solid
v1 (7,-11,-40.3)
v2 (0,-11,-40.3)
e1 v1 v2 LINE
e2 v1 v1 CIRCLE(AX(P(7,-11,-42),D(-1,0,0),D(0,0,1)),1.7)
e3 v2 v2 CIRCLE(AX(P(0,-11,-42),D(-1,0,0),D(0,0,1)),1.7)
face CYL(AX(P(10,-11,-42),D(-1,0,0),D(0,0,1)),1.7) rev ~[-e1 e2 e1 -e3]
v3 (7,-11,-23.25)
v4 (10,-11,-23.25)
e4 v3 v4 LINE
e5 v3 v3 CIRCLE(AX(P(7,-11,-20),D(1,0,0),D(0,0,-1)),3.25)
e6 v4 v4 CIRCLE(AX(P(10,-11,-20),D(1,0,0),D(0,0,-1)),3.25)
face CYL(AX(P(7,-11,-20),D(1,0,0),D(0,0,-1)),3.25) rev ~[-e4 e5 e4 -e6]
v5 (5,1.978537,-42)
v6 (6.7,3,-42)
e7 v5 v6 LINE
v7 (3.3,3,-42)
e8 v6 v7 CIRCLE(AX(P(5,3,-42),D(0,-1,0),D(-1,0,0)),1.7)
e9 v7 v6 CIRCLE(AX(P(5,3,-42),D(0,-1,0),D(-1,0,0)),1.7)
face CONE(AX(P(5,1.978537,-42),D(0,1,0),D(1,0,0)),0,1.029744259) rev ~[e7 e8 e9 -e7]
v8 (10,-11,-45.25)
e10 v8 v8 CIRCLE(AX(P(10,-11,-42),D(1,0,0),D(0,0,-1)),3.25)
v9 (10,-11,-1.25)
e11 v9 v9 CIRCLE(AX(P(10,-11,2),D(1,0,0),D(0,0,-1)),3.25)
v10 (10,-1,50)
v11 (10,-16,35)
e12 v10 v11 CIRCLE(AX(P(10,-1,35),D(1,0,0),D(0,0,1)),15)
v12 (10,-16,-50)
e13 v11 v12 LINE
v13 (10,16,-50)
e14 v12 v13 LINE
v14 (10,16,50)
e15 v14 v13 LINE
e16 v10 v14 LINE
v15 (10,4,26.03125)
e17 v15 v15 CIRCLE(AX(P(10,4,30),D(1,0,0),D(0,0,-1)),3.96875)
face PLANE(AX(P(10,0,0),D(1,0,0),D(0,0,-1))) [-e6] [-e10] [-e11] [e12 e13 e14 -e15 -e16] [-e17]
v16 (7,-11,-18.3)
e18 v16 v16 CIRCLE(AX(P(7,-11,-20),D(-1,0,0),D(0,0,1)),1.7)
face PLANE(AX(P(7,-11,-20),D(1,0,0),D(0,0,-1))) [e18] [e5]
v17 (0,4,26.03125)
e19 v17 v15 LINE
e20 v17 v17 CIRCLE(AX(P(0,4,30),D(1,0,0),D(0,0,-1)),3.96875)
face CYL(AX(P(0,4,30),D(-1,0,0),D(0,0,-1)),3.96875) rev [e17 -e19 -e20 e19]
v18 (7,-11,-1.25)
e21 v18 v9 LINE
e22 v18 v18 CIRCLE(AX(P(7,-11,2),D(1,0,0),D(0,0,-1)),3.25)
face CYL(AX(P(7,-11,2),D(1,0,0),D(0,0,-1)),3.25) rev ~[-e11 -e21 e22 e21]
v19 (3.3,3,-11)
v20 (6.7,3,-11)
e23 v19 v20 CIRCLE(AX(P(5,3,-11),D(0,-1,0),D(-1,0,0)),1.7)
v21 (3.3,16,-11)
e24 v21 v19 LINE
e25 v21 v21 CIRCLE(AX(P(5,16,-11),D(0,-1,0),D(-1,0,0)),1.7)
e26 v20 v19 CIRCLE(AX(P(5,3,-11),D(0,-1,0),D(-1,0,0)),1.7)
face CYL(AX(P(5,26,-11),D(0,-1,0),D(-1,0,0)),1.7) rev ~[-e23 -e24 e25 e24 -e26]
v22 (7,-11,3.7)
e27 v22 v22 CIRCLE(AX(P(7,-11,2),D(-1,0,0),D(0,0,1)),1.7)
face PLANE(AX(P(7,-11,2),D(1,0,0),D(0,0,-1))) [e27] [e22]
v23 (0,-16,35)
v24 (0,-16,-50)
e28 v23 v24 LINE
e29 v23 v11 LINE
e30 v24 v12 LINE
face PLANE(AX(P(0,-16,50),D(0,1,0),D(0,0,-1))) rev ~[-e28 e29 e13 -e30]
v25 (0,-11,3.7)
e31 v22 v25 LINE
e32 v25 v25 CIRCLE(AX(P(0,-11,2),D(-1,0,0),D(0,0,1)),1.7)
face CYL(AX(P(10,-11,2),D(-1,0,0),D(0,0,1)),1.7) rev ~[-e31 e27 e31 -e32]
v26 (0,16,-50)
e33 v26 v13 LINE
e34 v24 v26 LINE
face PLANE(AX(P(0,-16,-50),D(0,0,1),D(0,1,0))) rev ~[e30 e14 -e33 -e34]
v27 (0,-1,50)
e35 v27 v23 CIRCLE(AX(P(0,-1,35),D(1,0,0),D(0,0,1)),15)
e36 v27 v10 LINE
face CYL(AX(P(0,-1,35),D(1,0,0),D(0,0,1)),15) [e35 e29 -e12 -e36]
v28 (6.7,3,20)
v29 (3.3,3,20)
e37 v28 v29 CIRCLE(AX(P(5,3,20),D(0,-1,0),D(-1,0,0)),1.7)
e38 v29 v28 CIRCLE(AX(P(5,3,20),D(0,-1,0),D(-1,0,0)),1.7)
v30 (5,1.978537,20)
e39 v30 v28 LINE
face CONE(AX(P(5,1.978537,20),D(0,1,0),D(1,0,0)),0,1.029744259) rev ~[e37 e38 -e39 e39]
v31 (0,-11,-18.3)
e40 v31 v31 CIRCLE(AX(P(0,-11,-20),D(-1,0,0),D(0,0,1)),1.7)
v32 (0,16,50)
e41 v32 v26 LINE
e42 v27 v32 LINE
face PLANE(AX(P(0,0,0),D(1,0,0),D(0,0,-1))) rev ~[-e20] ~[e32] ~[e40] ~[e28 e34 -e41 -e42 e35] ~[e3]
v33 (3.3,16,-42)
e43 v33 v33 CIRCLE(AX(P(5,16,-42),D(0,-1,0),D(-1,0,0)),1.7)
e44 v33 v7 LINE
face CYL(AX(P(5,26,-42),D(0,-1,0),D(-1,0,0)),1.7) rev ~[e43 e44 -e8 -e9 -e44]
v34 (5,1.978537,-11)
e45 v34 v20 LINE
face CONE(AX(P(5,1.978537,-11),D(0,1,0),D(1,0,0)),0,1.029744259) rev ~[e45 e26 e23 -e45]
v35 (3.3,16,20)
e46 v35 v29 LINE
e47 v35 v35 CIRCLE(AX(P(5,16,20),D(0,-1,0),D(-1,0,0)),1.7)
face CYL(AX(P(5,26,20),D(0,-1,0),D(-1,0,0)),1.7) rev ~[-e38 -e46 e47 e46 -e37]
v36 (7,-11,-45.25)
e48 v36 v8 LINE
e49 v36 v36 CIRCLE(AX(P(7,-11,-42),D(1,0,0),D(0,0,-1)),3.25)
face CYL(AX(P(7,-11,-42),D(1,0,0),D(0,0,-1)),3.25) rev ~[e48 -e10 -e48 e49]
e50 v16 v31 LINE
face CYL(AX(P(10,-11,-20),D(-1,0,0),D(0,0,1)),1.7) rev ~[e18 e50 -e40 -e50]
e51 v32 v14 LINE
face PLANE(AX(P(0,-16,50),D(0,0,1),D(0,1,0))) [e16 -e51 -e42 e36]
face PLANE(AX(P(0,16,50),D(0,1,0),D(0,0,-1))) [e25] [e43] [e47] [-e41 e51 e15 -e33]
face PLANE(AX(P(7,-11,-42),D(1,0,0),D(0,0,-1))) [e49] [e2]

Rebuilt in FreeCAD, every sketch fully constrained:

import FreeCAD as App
import Part
import Sketcher

V = App.Vector


def edges_at(feature, points):
    """Names of the edges that pass closest to the given points."""
    edges = feature.Shape.Edges
    near = lambda p: min(range(len(edges)), key=lambda i: edges[i].distToShape(Part.Vertex(*p))[0])
    return sorted({f"Edge{near(p) + 1}" for p in points})


def add_polygon(sketch, points):
    """Adds a closed chain of lines whose ends are joined by coincident constraints."""
    first, n = sketch.GeometryCount, len(points)
    for a, b in zip(points, points[1:] + points[:1]):
        sketch.addGeometry(Part.LineSegment(App.Vector(*a, 0), App.Vector(*b, 0)), False)
    for i in range(n):
        sketch.addConstraint(Sketcher.Constraint("Coincident", first + i, 2, first + (i + 1) % n, 1))

doc = App.newDocument("Part")
body = doc.addObject("PartDesign::Body", "Body")

# Sketch on YZ plane
sketch1 = body.newObject("Sketcher::SketchObject", "Sketch")
sketch1.AttachmentSupport = (doc.getObject("YZ_Plane"), [""])
sketch1.MapMode = "FlatFace"
add_polygon(sketch1, [(16, 50), (-16, 50), (-16, -50), (16, -50)])  # lines 0-3
sketch1.addGeometry(Part.Circle(V(4, 30, 0), V(0, 0, 1), 4), False)  # 4
sketch1.addConstraint([
    Sketcher.Constraint("Horizontal", 0),
    Sketcher.Constraint("Vertical", 1),
    Sketcher.Constraint("Horizontal", 2),
    Sketcher.Constraint("Vertical", 3),
    Sketcher.Constraint("Symmetric", 0, 2, 2, 2, -1, 1),
    Sketcher.Constraint("DistanceX", 0, 2, 0, 1, 32.0),
    Sketcher.Constraint("DistanceY", 1, 2, 1, 1, 100.0),
    Sketcher.Constraint("DistanceX", -1, 1, 4, 3, 4.0),
    Sketcher.Constraint("DistanceY", -1, 1, 4, 3, 30.0),
    Sketcher.Constraint("Diameter", 4, 7.9375),
])
pad1 = body.newObject("PartDesign::Pad", "Pad")
pad1.Profile = sketch1
pad1.Length = 10
doc.recompute()

fillet = body.newObject("PartDesign::Fillet", "Fillet")
fillet.Base = (pad1, edges_at(pad1, [(5, -16, 50)]))
fillet.Radius = 15

# Sketch on XZ plane
sketch2 = body.newObject("Sketcher::SketchObject", "Sketch001")
sketch2.AttachmentSupport = (doc.getObject("XZ_Plane"), [""])
sketch2.MapMode = "FlatFace"
sketch2.AttachmentOffset = App.Placement(V(0, 0, -26), App.Rotation())
sketch2.addGeometry([
    Part.Circle(V(5, -42, 0), V(0, 0, 1), 1.7),  # 0
    Part.Circle(V(5, 20, 0), V(0, 0, 1), 1.7),  # 1
    Part.Circle(V(-105, -42, 0), V(0, 0, 1), 1.7),  # 2
    Part.Circle(V(-105, 42, 0), V(0, 0, 1), 1.7),  # 3
    Part.Circle(V(-105, 0, 0), V(0, 0, 1), 1.7),  # 4
    Part.Circle(V(5, -11, 0), V(0, 0, 1), 1.7),  # 5
], False)
sketch2.addConstraint([
    Sketcher.Constraint("Equal", 0, 1),
    Sketcher.Constraint("Equal", 1, 2),
    Sketcher.Constraint("Equal", 2, 3),
    Sketcher.Constraint("Equal", 3, 4),
    Sketcher.Constraint("Equal", 4, 5),
    Sketcher.Constraint("Symmetric", 2, 3, 3, 3, -1),
    Sketcher.Constraint("PointOnObject", 4, 3, -1),
    Sketcher.Constraint("Horizontal", 0, 3, 2, 3),
    Sketcher.Constraint("Vertical", 0, 3, 1, 3),
    Sketcher.Constraint("Vertical", 3, 3, 4, 3),
    Sketcher.Constraint("Vertical", 1, 3, 5, 3),
    Sketcher.Constraint("Diameter", 0, 3.4),
    Sketcher.Constraint("DistanceX", -1, 1, 0, 3, 5.0),
    Sketcher.Constraint("DistanceY", 0, 3, -1, 1, 42.0),
    Sketcher.Constraint("DistanceY", -1, 1, 1, 3, 20.0),
    Sketcher.Constraint("DistanceX", 2, 3, -1, 1, 105.0),
    Sketcher.Constraint("DistanceY", 5, 3, -1, 1, 11.0),
])
doc.recompute()
hole = body.newObject("PartDesign::Hole", "Hole")
hole.Profile = sketch2
hole.ThreadType = "None"
hole.Diameter = 3.4
hole.DepthType = "Dimension"
hole.Depth = 23
hole.DrillPoint = "Angled"
hole.DrillPointAngle = 118
hole.HoleCutType = "Counterbore"
hole.HoleCutDiameter = 6.5
hole.HoleCutDepth = 3
hole.Reversed = True

# Sketch on YZ plane
sketch3 = body.newObject("Sketcher::SketchObject", "Sketch002")
sketch3.AttachmentSupport = (doc.getObject("YZ_Plane"), [""])
sketch3.MapMode = "FlatFace"
sketch3.AttachmentOffset = App.Placement(V(0, 0, 10), App.Rotation())
sketch3.addGeometry([
    Part.Circle(V(-11, -42, 0), V(0, 0, 1), 1.7),
    Part.Circle(V(-11, 2, 0), V(0, 0, 1), 1.7),
    Part.Circle(V(-11, -20, 0), V(0, 0, 1), 1.7),
], False)
sketch3.addConstraint([
    Sketcher.Constraint("Equal", 0, 1),
    Sketcher.Constraint("Equal", 1, 2),
    Sketcher.Constraint("Vertical", 0, 3, 1, 3),
    Sketcher.Constraint("Vertical", 1, 3, 2, 3),
    Sketcher.Constraint("Diameter", 0, 3.4),
    Sketcher.Constraint("DistanceX", 0, 3, -1, 1, 11.0),
    Sketcher.Constraint("DistanceY", 0, 3, -1, 1, 42.0),
    Sketcher.Constraint("DistanceY", -1, 1, 1, 3, 2.0),
    Sketcher.Constraint("DistanceY", 2, 3, -1, 1, 20.0),
])
doc.recompute()
hole2 = body.newObject("PartDesign::Hole", "Hole001")
hole2.Profile = sketch3
hole2.ThreadType = "None"
hole2.Diameter = 3.4
hole2.DepthType = "Dimension"
hole2.Depth = 23
hole2.DrillPoint = "Angled"
hole2.DrillPointAngle = 118
hole2.HoleCutType = "Counterbore"
hole2.HoleCutDiameter = 6.5
hole2.HoleCutDepth = 3

doc.recompute()
